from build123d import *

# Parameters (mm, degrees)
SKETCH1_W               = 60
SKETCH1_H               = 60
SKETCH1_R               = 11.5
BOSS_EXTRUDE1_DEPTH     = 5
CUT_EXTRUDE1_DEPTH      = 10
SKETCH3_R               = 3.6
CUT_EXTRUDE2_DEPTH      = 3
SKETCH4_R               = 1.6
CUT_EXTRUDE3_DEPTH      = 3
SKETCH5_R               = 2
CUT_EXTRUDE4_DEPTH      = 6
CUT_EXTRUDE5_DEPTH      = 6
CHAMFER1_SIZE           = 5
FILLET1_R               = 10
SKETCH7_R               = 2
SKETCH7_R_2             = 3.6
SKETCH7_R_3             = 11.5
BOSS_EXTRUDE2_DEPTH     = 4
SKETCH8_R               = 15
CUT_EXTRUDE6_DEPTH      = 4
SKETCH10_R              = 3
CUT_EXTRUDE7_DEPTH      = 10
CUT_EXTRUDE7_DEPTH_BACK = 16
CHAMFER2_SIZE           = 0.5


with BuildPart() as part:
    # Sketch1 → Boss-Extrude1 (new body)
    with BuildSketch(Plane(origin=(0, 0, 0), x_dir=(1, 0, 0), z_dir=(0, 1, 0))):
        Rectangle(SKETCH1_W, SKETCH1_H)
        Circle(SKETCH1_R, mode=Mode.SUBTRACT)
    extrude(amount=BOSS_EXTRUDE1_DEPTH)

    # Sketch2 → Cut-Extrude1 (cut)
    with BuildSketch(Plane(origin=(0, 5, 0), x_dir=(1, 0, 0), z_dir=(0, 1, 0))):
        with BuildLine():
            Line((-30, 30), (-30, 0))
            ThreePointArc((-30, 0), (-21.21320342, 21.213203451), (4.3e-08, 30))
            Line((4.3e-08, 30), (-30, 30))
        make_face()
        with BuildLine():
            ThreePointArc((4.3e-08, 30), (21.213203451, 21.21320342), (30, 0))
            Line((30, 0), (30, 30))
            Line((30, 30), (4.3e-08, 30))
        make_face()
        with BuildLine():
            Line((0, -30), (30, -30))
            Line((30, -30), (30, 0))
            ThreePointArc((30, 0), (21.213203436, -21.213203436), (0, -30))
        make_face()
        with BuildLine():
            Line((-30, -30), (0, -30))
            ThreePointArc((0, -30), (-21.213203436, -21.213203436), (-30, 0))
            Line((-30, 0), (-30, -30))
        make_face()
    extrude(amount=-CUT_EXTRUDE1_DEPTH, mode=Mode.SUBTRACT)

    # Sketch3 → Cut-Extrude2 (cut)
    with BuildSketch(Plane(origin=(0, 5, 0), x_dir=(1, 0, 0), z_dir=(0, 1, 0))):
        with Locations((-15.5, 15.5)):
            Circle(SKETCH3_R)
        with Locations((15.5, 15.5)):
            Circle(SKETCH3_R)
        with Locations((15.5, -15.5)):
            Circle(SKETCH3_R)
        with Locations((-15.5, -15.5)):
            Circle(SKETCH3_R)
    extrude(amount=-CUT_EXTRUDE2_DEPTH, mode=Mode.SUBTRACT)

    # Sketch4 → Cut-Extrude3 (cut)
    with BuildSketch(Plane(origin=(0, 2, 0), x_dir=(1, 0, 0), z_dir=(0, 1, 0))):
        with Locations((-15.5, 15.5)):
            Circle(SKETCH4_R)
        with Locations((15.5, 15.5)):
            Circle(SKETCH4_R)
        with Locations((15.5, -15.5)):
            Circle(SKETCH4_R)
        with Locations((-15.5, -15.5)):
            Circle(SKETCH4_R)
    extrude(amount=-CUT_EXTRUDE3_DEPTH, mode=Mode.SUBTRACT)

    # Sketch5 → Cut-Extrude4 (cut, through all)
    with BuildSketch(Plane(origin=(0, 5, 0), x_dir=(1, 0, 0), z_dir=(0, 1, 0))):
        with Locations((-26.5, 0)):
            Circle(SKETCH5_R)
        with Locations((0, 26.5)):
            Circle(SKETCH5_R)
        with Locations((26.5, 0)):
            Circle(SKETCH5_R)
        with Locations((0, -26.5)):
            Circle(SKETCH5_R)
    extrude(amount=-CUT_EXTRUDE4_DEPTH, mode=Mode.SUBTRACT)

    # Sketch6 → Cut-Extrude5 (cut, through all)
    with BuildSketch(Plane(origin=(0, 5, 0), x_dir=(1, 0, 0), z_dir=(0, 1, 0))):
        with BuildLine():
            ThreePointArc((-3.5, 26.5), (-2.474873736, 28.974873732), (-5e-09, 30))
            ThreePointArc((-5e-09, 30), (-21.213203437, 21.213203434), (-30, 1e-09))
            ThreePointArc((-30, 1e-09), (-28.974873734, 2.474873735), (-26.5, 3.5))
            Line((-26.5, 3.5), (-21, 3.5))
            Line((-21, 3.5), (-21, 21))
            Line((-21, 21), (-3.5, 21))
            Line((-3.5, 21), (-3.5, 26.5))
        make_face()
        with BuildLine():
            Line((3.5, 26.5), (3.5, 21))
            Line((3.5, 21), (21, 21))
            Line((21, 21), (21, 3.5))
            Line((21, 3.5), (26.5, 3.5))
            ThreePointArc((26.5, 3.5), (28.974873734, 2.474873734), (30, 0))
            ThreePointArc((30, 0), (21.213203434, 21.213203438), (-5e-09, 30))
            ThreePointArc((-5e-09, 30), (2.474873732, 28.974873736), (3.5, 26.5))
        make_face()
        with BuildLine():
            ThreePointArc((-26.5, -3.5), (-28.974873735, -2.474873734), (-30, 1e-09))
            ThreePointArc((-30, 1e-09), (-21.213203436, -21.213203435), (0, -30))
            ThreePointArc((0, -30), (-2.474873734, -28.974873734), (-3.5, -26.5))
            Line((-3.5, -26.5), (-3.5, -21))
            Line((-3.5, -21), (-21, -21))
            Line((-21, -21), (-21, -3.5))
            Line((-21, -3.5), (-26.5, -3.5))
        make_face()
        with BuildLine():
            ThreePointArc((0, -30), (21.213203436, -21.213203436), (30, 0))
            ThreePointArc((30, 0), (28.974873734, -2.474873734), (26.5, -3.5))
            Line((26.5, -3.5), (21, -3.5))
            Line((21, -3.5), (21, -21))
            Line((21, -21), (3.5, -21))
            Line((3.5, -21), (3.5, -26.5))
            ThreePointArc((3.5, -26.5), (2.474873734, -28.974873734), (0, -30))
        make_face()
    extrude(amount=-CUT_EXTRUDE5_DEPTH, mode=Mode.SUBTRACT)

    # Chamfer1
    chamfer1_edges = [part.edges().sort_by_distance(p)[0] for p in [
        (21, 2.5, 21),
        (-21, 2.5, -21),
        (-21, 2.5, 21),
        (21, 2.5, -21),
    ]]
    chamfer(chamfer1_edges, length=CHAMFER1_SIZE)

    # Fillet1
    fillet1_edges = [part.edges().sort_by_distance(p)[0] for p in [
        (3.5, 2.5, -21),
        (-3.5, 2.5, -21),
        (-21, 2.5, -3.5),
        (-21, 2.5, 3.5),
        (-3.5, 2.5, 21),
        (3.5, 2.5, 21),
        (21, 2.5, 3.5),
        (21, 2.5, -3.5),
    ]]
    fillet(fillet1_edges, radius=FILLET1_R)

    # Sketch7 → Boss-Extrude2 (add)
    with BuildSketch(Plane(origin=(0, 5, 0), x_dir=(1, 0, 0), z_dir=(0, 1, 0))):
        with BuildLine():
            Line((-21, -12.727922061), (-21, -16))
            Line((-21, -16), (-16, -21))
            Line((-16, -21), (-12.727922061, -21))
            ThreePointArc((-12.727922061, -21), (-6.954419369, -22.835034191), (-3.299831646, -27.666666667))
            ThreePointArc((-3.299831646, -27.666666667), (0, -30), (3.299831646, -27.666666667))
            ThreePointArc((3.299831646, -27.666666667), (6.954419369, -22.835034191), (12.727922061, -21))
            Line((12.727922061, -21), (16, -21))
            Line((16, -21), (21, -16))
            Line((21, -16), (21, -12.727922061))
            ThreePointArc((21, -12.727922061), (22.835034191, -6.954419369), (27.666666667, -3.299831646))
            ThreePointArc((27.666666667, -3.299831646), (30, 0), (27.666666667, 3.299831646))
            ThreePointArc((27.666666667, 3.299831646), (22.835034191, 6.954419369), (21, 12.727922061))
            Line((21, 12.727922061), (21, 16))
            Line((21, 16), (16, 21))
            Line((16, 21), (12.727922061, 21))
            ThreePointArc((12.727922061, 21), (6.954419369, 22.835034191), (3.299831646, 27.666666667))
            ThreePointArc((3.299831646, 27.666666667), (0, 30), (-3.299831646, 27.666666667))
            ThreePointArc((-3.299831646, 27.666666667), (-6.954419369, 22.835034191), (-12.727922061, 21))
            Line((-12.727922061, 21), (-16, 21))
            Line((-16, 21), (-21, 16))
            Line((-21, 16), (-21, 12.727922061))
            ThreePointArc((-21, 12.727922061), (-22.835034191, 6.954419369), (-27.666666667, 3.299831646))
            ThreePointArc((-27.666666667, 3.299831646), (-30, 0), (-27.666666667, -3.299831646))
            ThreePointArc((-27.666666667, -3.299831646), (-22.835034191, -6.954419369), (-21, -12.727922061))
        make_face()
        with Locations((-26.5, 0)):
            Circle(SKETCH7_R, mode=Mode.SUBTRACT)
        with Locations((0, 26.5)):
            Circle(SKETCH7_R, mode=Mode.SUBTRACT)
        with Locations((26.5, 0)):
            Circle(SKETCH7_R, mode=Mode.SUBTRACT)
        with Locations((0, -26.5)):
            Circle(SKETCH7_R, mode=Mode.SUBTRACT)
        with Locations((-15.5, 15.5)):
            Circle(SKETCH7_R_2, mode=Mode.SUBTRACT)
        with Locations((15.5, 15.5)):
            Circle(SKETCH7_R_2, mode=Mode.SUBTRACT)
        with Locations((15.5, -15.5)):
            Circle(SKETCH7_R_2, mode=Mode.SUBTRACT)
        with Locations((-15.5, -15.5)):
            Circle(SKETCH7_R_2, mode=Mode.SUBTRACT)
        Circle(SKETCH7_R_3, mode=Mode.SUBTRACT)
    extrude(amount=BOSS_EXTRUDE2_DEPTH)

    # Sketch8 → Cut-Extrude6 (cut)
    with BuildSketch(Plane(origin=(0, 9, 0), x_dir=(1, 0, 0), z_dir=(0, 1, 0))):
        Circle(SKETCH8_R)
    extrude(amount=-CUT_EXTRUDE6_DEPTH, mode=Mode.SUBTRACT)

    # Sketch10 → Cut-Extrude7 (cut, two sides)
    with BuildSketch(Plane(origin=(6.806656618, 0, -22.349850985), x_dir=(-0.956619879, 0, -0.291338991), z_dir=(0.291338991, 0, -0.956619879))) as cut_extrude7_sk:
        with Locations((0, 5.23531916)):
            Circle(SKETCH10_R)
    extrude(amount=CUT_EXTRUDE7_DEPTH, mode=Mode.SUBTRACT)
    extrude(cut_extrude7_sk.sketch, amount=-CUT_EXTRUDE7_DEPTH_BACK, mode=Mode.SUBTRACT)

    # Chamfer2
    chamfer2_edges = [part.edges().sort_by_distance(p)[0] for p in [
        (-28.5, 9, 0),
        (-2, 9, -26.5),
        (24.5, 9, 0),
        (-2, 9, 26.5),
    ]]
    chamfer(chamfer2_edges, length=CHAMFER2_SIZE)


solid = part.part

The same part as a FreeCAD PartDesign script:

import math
import FreeCAD as App
import Part
import Sketcher
Q = App.Units.Quantity


def edges_at(feature, points):
    """Names of the edges that pass closest to the given points."""
    edges = feature.Shape.Edges
    near = lambda p: min(range(len(edges)), key=lambda i: edges[i].distToShape(Part.Vertex(*p))[0])
    return sorted({f"Edge{near(p) + 1}" for p in points})

doc = App.newDocument("Part")
body = doc.addObject("PartDesign::Body", "Body")

# Sketch on XZ plane
sketch1 = doc.addObject("Sketcher::SketchObject", "Sketch")
body.addObject(sketch1)
sketch1.AttachmentSupport = (doc.XZ_Plane, [""])
sketch1.MapMode = "FlatFace"
sketch1.addGeometry(Part.LineSegment(App.Vector(-30, -30, 0), App.Vector(-30, 30, 0)), False)
sketch1.addGeometry(Part.LineSegment(App.Vector(-30, 30, 0), App.Vector(30, 30, 0)), False)
sketch1.addGeometry(Part.LineSegment(App.Vector(30, 30, 0), App.Vector(30, -30, 0)), False)
sketch1.addGeometry(Part.LineSegment(App.Vector(30, -30, 0), App.Vector(-30, -30, 0)), False)
sketch1.addGeometry(Part.Circle(App.Vector(0, 0, 0), App.Vector(0, 0, 1), 12), False)
sketch1.addConstraint(Sketcher.Constraint("Coincident", 0, 2, 1, 1))
sketch1.addConstraint(Sketcher.Constraint("Coincident", 1, 2, 2, 1))
sketch1.addConstraint(Sketcher.Constraint("Coincident", 2, 2, 3, 1))
sketch1.addConstraint(Sketcher.Constraint("Coincident", 3, 2, 0, 1))
sketch1.addConstraint(Sketcher.Constraint("Vertical", 0))
sketch1.addConstraint(Sketcher.Constraint("Horizontal", 1))
sketch1.addConstraint(Sketcher.Constraint("Vertical", 2))
sketch1.addConstraint(Sketcher.Constraint("Horizontal", 3))
sketch1.addConstraint(Sketcher.Constraint("Coincident", 4, 3, -1, 1))
sketch1.addConstraint(Sketcher.Constraint("Symmetric", 0, 2, 2, 2, -1, 1))
sketch1.addConstraint(Sketcher.Constraint("Equal", 3, 0))
sketch1.addConstraint(Sketcher.Constraint("Diameter", 4, Q("23 mm")))
sketch1.addConstraint(Sketcher.Constraint("DistanceX", 1, 1, 1, 2, Q("60 mm")))
pad1 = doc.addObject("PartDesign::Pad", "Pad")
body.addObject(pad1)
pad1.Profile = sketch1
pad1.Length = 5
pad1.Reversed = True

# Sketch on XZ plane
sketch2 = doc.addObject("Sketcher::SketchObject", "Sketch001")
body.addObject(sketch2)
sketch2.AttachmentSupport = (doc.XZ_Plane, [""])
sketch2.MapMode = "FlatFace"
sketch2.AttachmentOffset = App.Placement(App.Vector(0, 0, -5), App.Rotation())
sketch2.addGeometry(Part.LineSegment(App.Vector(-30, -30, 0), App.Vector(-30, 0, 0)), False)
sketch2.addGeometry(Part.ArcOfCircle(Part.Circle(App.Vector(0, 0, 0), App.Vector(0, 0, 1), 30), math.radians(180), math.radians(270)), False)
sketch2.addGeometry(Part.LineSegment(App.Vector(0, -30, 0), App.Vector(-30, -30, 0)), False)
sketch2.addGeometry(Part.ArcOfCircle(Part.Circle(App.Vector(0, 0, 0), App.Vector(0, 0, 1), 30), math.radians(-90), math.radians(0)), False)
sketch2.addGeometry(Part.LineSegment(App.Vector(30, 0, 0), App.Vector(30, -30, 0)), False)
sketch2.addGeometry(Part.LineSegment(App.Vector(30, -30, 0), App.Vector(0, -30, 0)), False)
sketch2.addGeometry(Part.LineSegment(App.Vector(0, 30, 0), App.Vector(30, 30, 0)), False)
sketch2.addGeometry(Part.LineSegment(App.Vector(30, 30, 0), App.Vector(30, 0, 0)), False)
sketch2.addGeometry(Part.ArcOfCircle(Part.Circle(App.Vector(0, 0, 0), App.Vector(0, 0, 1), 30), math.radians(0), math.radians(90)), False)
sketch2.addGeometry(Part.LineSegment(App.Vector(-30, 30, 0), App.Vector(0, 30, 0)), False)
sketch2.addGeometry(Part.ArcOfCircle(Part.Circle(App.Vector(0, 0, 0), App.Vector(0, 0, 1), 30), math.radians(90), math.radians(180)), False)
sketch2.addGeometry(Part.LineSegment(App.Vector(-30, 0, 0), App.Vector(-30, 30, 0)), False)
sketch2.addConstraint(Sketcher.Constraint("Tangent", 0, 2, 1, 1))
sketch2.addConstraint(Sketcher.Constraint("Tangent", 1, 2, 2, 1))
sketch2.addConstraint(Sketcher.Constraint("Coincident", 2, 2, 0, 1))
sketch2.addConstraint(Sketcher.Constraint("Tangent", 3, 2, 4, 1))
sketch2.addConstraint(Sketcher.Constraint("Coincident", 4, 2, 5, 1))
sketch2.addConstraint(Sketcher.Constraint("Tangent", 5, 2, 3, 1))
sketch2.addConstraint(Sketcher.Constraint("Coincident", 6, 2, 7, 1))
sketch2.addConstraint(Sketcher.Constraint("Tangent", 7, 2, 8, 1))
sketch2.addConstraint(Sketcher.Constraint("Tangent", 8, 2, 6, 1))
sketch2.addConstraint(Sketcher.Constraint("Tangent", 9, 2, 10, 1))
sketch2.addConstraint(Sketcher.Constraint("Tangent", 10, 2, 11, 1))
sketch2.addConstraint(Sketcher.Constraint("Coincident", 11, 2, 9, 1))
sketch2.addConstraint(Sketcher.Constraint("Vertical", 0))
sketch2.addConstraint(Sketcher.Constraint("Horizontal", 2))
sketch2.addConstraint(Sketcher.Constraint("Vertical", 4))
sketch2.addConstraint(Sketcher.Constraint("Horizontal", 5))
sketch2.addConstraint(Sketcher.Constraint("Horizontal", 6))
sketch2.addConstraint(Sketcher.Constraint("Vertical", 7))
sketch2.addConstraint(Sketcher.Constraint("Horizontal", 9))
sketch2.addConstraint(Sketcher.Constraint("Vertical", 11))
sketch2.addConstraint(Sketcher.Constraint("Coincident", 1, 3, -1, 1))
sketch2.addConstraint(Sketcher.Constraint("Coincident", 3, 3, -1, 1))
sketch2.addConstraint(Sketcher.Constraint("Coincident", 8, 3, -1, 1))
sketch2.addConstraint(Sketcher.Constraint("Coincident", 10, 3, -1, 1))
sketch2.addConstraint(Sketcher.Constraint("Equal", 1, 3))
sketch2.addConstraint(Sketcher.Constraint("Equal", 3, 8))
sketch2.addConstraint(Sketcher.Constraint("Equal", 8, 10))
sketch2.addConstraint(Sketcher.Constraint("Radius", 1, Q("30 mm")))
pocket1 = doc.addObject("PartDesign::Pocket", "Pocket")
body.addObject(pocket1)
pocket1.Profile = sketch2
pocket1.Length = 10
pocket1.Reversed = True

# Sketch on XZ plane
sketch3 = doc.addObject("Sketcher::SketchObject", "Sketch002")
body.addObject(sketch3)
sketch3.AttachmentSupport = (doc.XZ_Plane, [""])
sketch3.MapMode = "FlatFace"
sketch3.AttachmentOffset = App.Placement(App.Vector(0, 0, -5), App.Rotation())
sketch3.addGeometry(Part.Circle(App.Vector(-15.5, -15.5, 0), App.Vector(0, 0, 1), 3.6), False)
sketch3.addGeometry(Part.Circle(App.Vector(15.5, -15.5, 0), App.Vector(0, 0, 1), 3.6), False)
sketch3.addGeometry(Part.Circle(App.Vector(15.5, 15.5, 0), App.Vector(0, 0, 1), 3.6), False)
sketch3.addGeometry(Part.Circle(App.Vector(-15.5, 15.5, 0), App.Vector(0, 0, 1), 3.6), False)
sketch3.addConstraint(Sketcher.Constraint("Equal", 0, 1))
sketch3.addConstraint(Sketcher.Constraint("Equal", 1, 2))
sketch3.addConstraint(Sketcher.Constraint("Equal", 2, 3))
sketch3.addConstraint(Sketcher.Constraint("Symmetric", 0, 3, 2, 3, -1, 1))
sketch3.addConstraint(Sketcher.Constraint("Symmetric", 1, 3, 3, 3, -1, 1))
sketch3.addConstraint(Sketcher.Constraint("Symmetric", 0, 3, 1, 3, -2))
sketch3.addConstraint(Sketcher.Constraint("Diameter", 0, Q("7.2 mm")))
sketch3.addConstraint(Sketcher.Constraint("DistanceX", 0, 3, 1, 3, Q("31 mm")))
sketch3.addConstraint(Sketcher.Constraint("DistanceY", 1, 3, 2, 3, Q("31 mm")))
pocket2 = doc.addObject("PartDesign::Pocket", "Pocket001")
body.addObject(pocket2)
pocket2.Profile = sketch3
pocket2.Length = 3
pocket2.Reversed = True

# Sketch on XZ plane
sketch4 = doc.addObject("Sketcher::SketchObject", "Sketch003")
body.addObject(sketch4)
sketch4.AttachmentSupport = (doc.XZ_Plane, [""])
sketch4.MapMode = "FlatFace"
sketch4.AttachmentOffset = App.Placement(App.Vector(0, 0, -2), App.Rotation())
sketch4.addGeometry(Part.Circle(App.Vector(-15.5, -15.5, 0), App.Vector(0, 0, 1), 1.6), False)
sketch4.addGeometry(Part.Circle(App.Vector(15.5, -15.5, 0), App.Vector(0, 0, 1), 1.6), False)
sketch4.addGeometry(Part.Circle(App.Vector(15.5, 15.5, 0), App.Vector(0, 0, 1), 1.6), False)
sketch4.addGeometry(Part.Circle(App.Vector(-15.5, 15.5, 0), App.Vector(0, 0, 1), 1.6), False)
sketch4.addConstraint(Sketcher.Constraint("Equal", 0, 1))
sketch4.addConstraint(Sketcher.Constraint("Equal", 1, 2))
sketch4.addConstraint(Sketcher.Constraint("Equal", 2, 3))
sketch4.addConstraint(Sketcher.Constraint("Symmetric", 0, 3, 2, 3, -1, 1))
sketch4.addConstraint(Sketcher.Constraint("Symmetric", 1, 3, 3, 3, -1, 1))
sketch4.addConstraint(Sketcher.Constraint("Symmetric", 0, 3, 1, 3, -2))
sketch4.addConstraint(Sketcher.Constraint("Diameter", 0, Q("3.2 mm")))
sketch4.addConstraint(Sketcher.Constraint("DistanceX", 0, 3, 1, 3, Q("31 mm")))
sketch4.addConstraint(Sketcher.Constraint("DistanceY", 1, 3, 2, 3, Q("31 mm")))
pocket3 = doc.addObject("PartDesign::Pocket", "Pocket002")
body.addObject(pocket3)
pocket3.Profile = sketch4
pocket3.Length = 3
pocket3.Reversed = True

# Sketch on XZ plane
sketch5 = doc.addObject("Sketcher::SketchObject", "Sketch004")
body.addObject(sketch5)
sketch5.AttachmentSupport = (doc.XZ_Plane, [""])
sketch5.MapMode = "FlatFace"
sketch5.AttachmentOffset = App.Placement(App.Vector(0, 0, -5), App.Rotation())
sketch5.addGeometry(Part.Circle(App.Vector(-26.5, 0, 0), App.Vector(0, 0, 1), 2), False)
sketch5.addGeometry(Part.Circle(App.Vector(0, -26.5, 0), App.Vector(0, 0, 1), 2), False)
sketch5.addGeometry(Part.Circle(App.Vector(26.5, 0, 0), App.Vector(0, 0, 1), 2), False)
sketch5.addGeometry(Part.Circle(App.Vector(0, 26.5, 0), App.Vector(0, 0, 1), 2), False)
sketch5.addConstraint(Sketcher.Constraint("Equal", 0, 1))
sketch5.addConstraint(Sketcher.Constraint("Equal", 1, 2))
sketch5.addConstraint(Sketcher.Constraint("Equal", 2, 3))
sketch5.addConstraint(Sketcher.Constraint("Symmetric", 0, 3, 2, 3, -1, 1))
sketch5.addConstraint(Sketcher.Constraint("Symmetric", 1, 3, 3, 3, -1, 1))
sketch5.addConstraint(Sketcher.Constraint("PointOnObject", 0, 3, -1))
sketch5.addConstraint(Sketcher.Constraint("PointOnObject", 1, 3, -2))
sketch5.addConstraint(Sketcher.Constraint("Diameter", 0, Q("4 mm")))
sketch5.addConstraint(Sketcher.Constraint("DistanceX", 0, 3, 2, 3, Q("53 mm")))
sketch5.addConstraint(Sketcher.Constraint("DistanceY", 1, 3, 3, 3, Q("53 mm")))
pocket4 = doc.addObject("PartDesign::Pocket", "Pocket003")
body.addObject(pocket4)
pocket4.Profile = sketch5
pocket4.Type = "ThroughAll"
pocket4.Reversed = True

# Sketch on XZ plane
sketch6 = doc.addObject("Sketcher::SketchObject", "Sketch005")
body.addObject(sketch6)
sketch6.AttachmentSupport = (doc.XZ_Plane, [""])
sketch6.MapMode = "FlatFace"
sketch6.AttachmentOffset = App.Placement(App.Vector(0, 0, -5), App.Rotation())
sketch6.addGeometry(Part.ArcOfCircle(Part.Circle(App.Vector(0, -26.5, 0), App.Vector(0, 0, 1), 3.5), math.radians(-180), math.radians(-90)), False)
sketch6.addGeometry(Part.ArcOfCircle(Part.Circle(App.Vector(0, 0, 0), App.Vector(0, 0, 1), 30), math.radians(-180), math.radians(-90)), False)
sketch6.addGeometry(Part.ArcOfCircle(Part.Circle(App.Vector(-26.5, 0, 0), App.Vector(0, 0, 1), 3.5), math.radians(180), math.radians(270)), False)
sketch6.addGeometry(Part.LineSegment(App.Vector(-26.5, -3.5, 0), App.Vector(-21, -3.5, 0)), False)
sketch6.addGeometry(Part.LineSegment(App.Vector(-21, -3.5, 0), App.Vector(-21, -21, 0)), False)
sketch6.addGeometry(Part.LineSegment(App.Vector(-21, -21, 0), App.Vector(-3.5, -21, 0)), False)
sketch6.addGeometry(Part.LineSegment(App.Vector(-3.5, -21, 0), App.Vector(-3.5, -26.5, 0)), False)
sketch6.addGeometry(Part.LineSegment(App.Vector(3.5, -26.5, 0), App.Vector(3.5, -21, 0)), False)
sketch6.addGeometry(Part.LineSegment(App.Vector(3.5, -21, 0), App.Vector(21, -21, 0)), False)
sketch6.addGeometry(Part.LineSegment(App.Vector(21, -21, 0), App.Vector(21, -3.5, 0)), False)
sketch6.addGeometry(Part.LineSegment(App.Vector(21, -3.5, 0), App.Vector(26.5, -3.5, 0)), False)
sketch6.addGeometry(Part.ArcOfCircle(Part.Circle(App.Vector(26.5, 0, 0), App.Vector(0, 0, 1), 3.5), math.radians(-90), math.radians(0)), False)
sketch6.addGeometry(Part.ArcOfCircle(Part.Circle(App.Vector(0, 0, 0), App.Vector(0, 0, 1), 30), math.radians(-90), math.radians(0)), False)
sketch6.addGeometry(Part.ArcOfCircle(Part.Circle(App.Vector(0, -26.5, 0), App.Vector(0, 0, 1), 3.5), math.radians(-90), math.radians(0)), False)
sketch6.addGeometry(Part.ArcOfCircle(Part.Circle(App.Vector(-26.5, 0, 0), App.Vector(0, 0, 1), 3.5), math.radians(90), math.radians(180)), False)
sketch6.addGeometry(Part.ArcOfCircle(Part.Circle(App.Vector(0, 0, 0), App.Vector(0, 0, 1), 30), math.radians(90), math.radians(180)), False)
sketch6.addGeometry(Part.ArcOfCircle(Part.Circle(App.Vector(0, 26.5, 0), App.Vector(0, 0, 1), 3.5), math.radians(90), math.radians(180)), False)
sketch6.addGeometry(Part.LineSegment(App.Vector(-3.5, 26.5, 0), App.Vector(-3.5, 21, 0)), False)
sketch6.addGeometry(Part.LineSegment(App.Vector(-3.5, 21, 0), App.Vector(-21, 21, 0)), False)
sketch6.addGeometry(Part.LineSegment(App.Vector(-21, 21, 0), App.Vector(-21, 3.5, 0)), False)
sketch6.addGeometry(Part.LineSegment(App.Vector(-21, 3.5, 0), App.Vector(-26.5, 3.5, 0)), False)
sketch6.addGeometry(Part.ArcOfCircle(Part.Circle(App.Vector(0, 0, 0), App.Vector(0, 0, 1), 30), math.radians(0), math.radians(90)), False)
sketch6.addGeometry(Part.ArcOfCircle(Part.Circle(App.Vector(26.5, 0, 0), App.Vector(0, 0, 1), 3.5), math.radians(0), math.radians(90)), False)
sketch6.addGeometry(Part.LineSegment(App.Vector(26.5, 3.5, 0), App.Vector(21, 3.5, 0)), False)
sketch6.addGeometry(Part.LineSegment(App.Vector(21, 3.5, 0), App.Vector(21, 21, 0)), False)
sketch6.addGeometry(Part.LineSegment(App.Vector(21, 21, 0), App.Vector(3.5, 21, 0)), False)
sketch6.addGeometry(Part.LineSegment(App.Vector(3.5, 21, 0), App.Vector(3.5, 26.5, 0)), False)
sketch6.addGeometry(Part.ArcOfCircle(Part.Circle(App.Vector(0, 26.5, 0), App.Vector(0, 0, 1), 3.5), math.radians(0), math.radians(90)), False)
sketch6.addConstraint(Sketcher.Constraint("Tangent", 0, 2, 1, 2))
sketch6.addConstraint(Sketcher.Constraint("Tangent", 1, 1, 2, 1))
sketch6.addConstraint(Sketcher.Constraint("Tangent", 2, 2, 3, 1))
sketch6.addConstraint(Sketcher.Constraint("Coincident", 3, 2, 4, 1))
sketch6.addConstraint(Sketcher.Constraint("Coincident", 4, 2, 5, 1))
sketch6.addConstraint(Sketcher.Constraint("Coincident", 5, 2, 6, 1))
sketch6.addConstraint(Sketcher.Constraint("Tangent", 6, 2, 0, 1))
sketch6.addConstraint(Sketcher.Constraint("Coincident", 7, 2, 8, 1))
sketch6.addConstraint(Sketcher.Constraint("Coincident", 8, 2, 9, 1))
sketch6.addConstraint(Sketcher.Constraint("Coincident", 9, 2, 10, 1))
sketch6.addConstraint(Sketcher.Constraint("Tangent", 10, 2, 11, 1))
sketch6.addConstraint(Sketcher.Constraint("Tangent", 11, 2, 12, 2))
sketch6.addConstraint(Sketcher.Constraint("Tangent", 12, 1, 13, 1))
sketch6.addConstraint(Sketcher.Constraint("Tangent", 13, 2, 7, 1))
sketch6.addConstraint(Sketcher.Constraint("Tangent", 14, 2, 15, 2))
sketch6.addConstraint(Sketcher.Constraint("Tangent", 15, 1, 16, 1))
sketch6.addConstraint(Sketcher.Constraint("Tangent", 16, 2, 17, 1))
sketch6.addConstraint(Sketcher.Constraint("Coincident", 17, 2, 18, 1))
sketch6.addConstraint(Sketcher.Constraint("Coincident", 18, 2, 19, 1))
sketch6.addConstraint(Sketcher.Constraint("Coincident", 19, 2, 20, 1))
sketch6.addConstraint(Sketcher.Constraint("Tangent", 20, 2, 14, 1))
sketch6.addConstraint(Sketcher.Constraint("Tangent", 21, 1, 22, 1))
sketch6.addConstraint(Sketcher.Constraint("Tangent", 22, 2, 23, 1))
sketch6.addConstraint(Sketcher.Constraint("Coincident", 23, 2, 24, 1))
sketch6.addConstraint(Sketcher.Constraint("Coincident", 24, 2, 25, 1))
sketch6.addConstraint(Sketcher.Constraint("Coincident", 25, 2, 26, 1))
sketch6.addConstraint(Sketcher.Constraint("Tangent", 26, 2, 27, 1))
sketch6.addConstraint(Sketcher.Constraint("Tangent", 27, 2, 21, 2))
sketch6.addConstraint(Sketcher.Constraint("Horizontal", 3))
sketch6.addConstraint(Sketcher.Constraint("Vertical", 4))
sketch6.addConstraint(Sketcher.Constraint("Horizontal", 5))
sketch6.addConstraint(Sketcher.Constraint("Vertical", 6))
sketch6.addConstraint(Sketcher.Constraint("Vertical", 7))
sketch6.addConstraint(Sketcher.Constraint("Horizontal", 8))
sketch6.addConstraint(Sketcher.Constraint("Vertical", 9))
sketch6.addConstraint(Sketcher.Constraint("Horizontal", 10))
sketch6.addConstraint(Sketcher.Constraint("Vertical", 17))
sketch6.addConstraint(Sketcher.Constraint("Horizontal", 18))
sketch6.addConstraint(Sketcher.Constraint("Vertical", 19))
sketch6.addConstraint(Sketcher.Constraint("Horizontal", 20))
sketch6.addConstraint(Sketcher.Constraint("Horizontal", 23))
sketch6.addConstraint(Sketcher.Constraint("Vertical", 24))
sketch6.addConstraint(Sketcher.Constraint("Horizontal", 25))
sketch6.addConstraint(Sketcher.Constraint("Vertical", 26))
sketch6.addConstraint(Sketcher.Constraint("Coincident", 1, 3, -1, 1))
sketch6.addConstraint(Sketcher.Constraint("Coincident", 12, 3, -1, 1))
sketch6.addConstraint(Sketcher.Constraint("Coincident", 15, 3, -1, 1))
sketch6.addConstraint(Sketcher.Constraint("Coincident", 21, 3, -1, 1))
sketch6.addConstraint(Sketcher.Constraint("Coincident", 13, 3, 0, 3))
sketch6.addConstraint(Sketcher.Constraint("Coincident", 14, 3, 2, 3))
sketch6.addConstraint(Sketcher.Constraint("Coincident", 22, 3, 11, 3))
sketch6.addConstraint(Sketcher.Constraint("Coincident", 27, 3, 16, 3))
sketch6.addConstraint(Sketcher.Constraint("Equal", 0, 2))
sketch6.addConstraint(Sketcher.Constraint("Equal", 2, 11))
sketch6.addConstraint(Sketcher.Constraint("Equal", 1, 12))
sketch6.addConstraint(Sketcher.Constraint("Equal", 13, 14))
sketch6.addConstraint(Sketcher.Constraint("Equal", 14, 16))
sketch6.addConstraint(Sketcher.Constraint("Equal", 15, 21))
sketch6.addConstraint(Sketcher.Constraint("Symmetric", 7, 2, 17, 2, -1, 1))
sketch6.addConstraint(Sketcher.Constraint("Symmetric", 9, 2, 19, 2, -1, 1))
sketch6.addConstraint(Sketcher.Constraint("Symmetric", 4, 2, 24, 2, -1, 1))
sketch6.addConstraint(Sketcher.Constraint("Symmetric", 5, 2, 7, 2, -2))
sketch6.addConstraint(Sketcher.Constraint("Symmetric", 3, 2, 9, 2, -2))
sketch6.addConstraint(Sketcher.Constraint("Equal", 25, 4))
sketch6.addConstraint(Sketcher.Constraint("Radius", 1, Q("30 mm")))
sketch6.addConstraint(Sketcher.Constraint("Radius", 0, Q("3.5 mm")))
sketch6.addConstraint(Sketcher.Constraint("DistanceX", 3, 1, 3, 2, Q("5.5 mm")))
pocket5 = doc.addObject("PartDesign::Pocket", "Pocket004")
body.addObject(pocket5)
pocket5.Profile = sketch6
pocket5.Type = "ThroughAll"
pocket5.Reversed = True
doc.recompute()

chamfer = doc.addObject("PartDesign::Chamfer", "Chamfer")
body.addObject(chamfer)
chamfer.Base = (pocket5, edges_at(pocket5, [
    (21, 2.5, 21),
    (-21, 2.5, -21),
    (-21, 2.5, 21),
    (21, 2.5, -21),
]))
chamfer.Size = 5
doc.recompute()

fillet = doc.addObject("PartDesign::Fillet", "Fillet")
body.addObject(fillet)
fillet.Base = (chamfer, edges_at(chamfer, [
    (3.5, 2.5, -21),
    (-3.5, 2.5, -21),
    (-21, 2.5, -3.5),
    (-21, 2.5, 3.5),
    (-3.5, 2.5, 21),
    (3.5, 2.5, 21),
    (21, 2.5, 3.5),
    (21, 2.5, -3.5),
]))
fillet.Radius = 10

# Sketch on XZ plane
sketch7 = doc.addObject("Sketcher::SketchObject", "Sketch006")
body.addObject(sketch7)
sketch7.AttachmentSupport = (doc.XZ_Plane, [""])
sketch7.MapMode = "FlatFace"
sketch7.AttachmentOffset = App.Placement(App.Vector(0, 0, -5), App.Rotation())
sketch7.addGeometry(Part.LineSegment(App.Vector(-21, 12.7, 0), App.Vector(-21, 16, 0)), False)
sketch7.addGeometry(Part.LineSegment(App.Vector(-21, 16, 0), App.Vector(-16, 21, 0)), False)
sketch7.addGeometry(Part.LineSegment(App.Vector(-16, 21, 0), App.Vector(-12.7, 21, 0)), False)
sketch7.addGeometry(Part.ArcOfCircle(Part.Circle(App.Vector(-12.7, 31, 0), App.Vector(0, 0, 1), 10), math.radians(-90), math.radians(-19)), False)
sketch7.addGeometry(Part.ArcOfCircle(Part.Circle(App.Vector(0, 26.5, 0), App.Vector(0, 0, 1), 3.5), math.radians(19), math.radians(161)), False)
sketch7.addGeometry(Part.ArcOfCircle(Part.Circle(App.Vector(12.7, 31, 0), App.Vector(0, 0, 1), 10), math.radians(-161), math.radians(-90)), False)
sketch7.addGeometry(Part.LineSegment(App.Vector(12.7, 21, 0), App.Vector(16, 21, 0)), False)
sketch7.addGeometry(Part.LineSegment(App.Vector(16, 21, 0), App.Vector(21, 16, 0)), False)
sketch7.addGeometry(Part.LineSegment(App.Vector(21, 16, 0), App.Vector(21, 12.7, 0)), False)
sketch7.addGeometry(Part.ArcOfCircle(Part.Circle(App.Vector(31, 12.7, 0), App.Vector(0, 0, 1), 10), math.radians(180), math.radians(251)), False)
sketch7.addGeometry(Part.ArcOfCircle(Part.Circle(App.Vector(26.5, 0, 0), App.Vector(0, 0, 1), 3.5), math.radians(-71), math.radians(71)), False)
sketch7.addGeometry(Part.ArcOfCircle(Part.Circle(App.Vector(31, -12.7, 0), App.Vector(0, 0, 1), 10), math.radians(109), math.radians(180)), False)
sketch7.addGeometry(Part.LineSegment(App.Vector(21, -12.7, 0), App.Vector(21, -16, 0)), False)
sketch7.addGeometry(Part.LineSegment(App.Vector(21, -16, 0), App.Vector(16, -21, 0)), False)
sketch7.addGeometry(Part.LineSegment(App.Vector(16, -21, 0), App.Vector(12.7, -21, 0)), False)
sketch7.addGeometry(Part.ArcOfCircle(Part.Circle(App.Vector(12.7, -31, 0), App.Vector(0, 0, 1), 10), math.radians(90), math.radians(161)), False)
sketch7.addGeometry(Part.ArcOfCircle(Part.Circle(App.Vector(0, -26.5, 0), App.Vector(0, 0, 1), 3.5), math.radians(-161), math.radians(-19)), False)
sketch7.addGeometry(Part.ArcOfCircle(Part.Circle(App.Vector(-12.7, -31, 0), App.Vector(0, 0, 1), 10), math.radians(19), math.radians(90)), False)
sketch7.addGeometry(Part.LineSegment(App.Vector(-12.7, -21, 0), App.Vector(-16, -21, 0)), False)
sketch7.addGeometry(Part.LineSegment(App.Vector(-16, -21, 0), App.Vector(-21, -16, 0)), False)
sketch7.addGeometry(Part.LineSegment(App.Vector(-21, -16, 0), App.Vector(-21, -12.7, 0)), False)
sketch7.addGeometry(Part.ArcOfCircle(Part.Circle(App.Vector(-31, -12.7, 0), App.Vector(0, 0, 1), 10), math.radians(0), math.radians(71)), False)
sketch7.addGeometry(Part.ArcOfCircle(Part.Circle(App.Vector(-26.5, 0, 0), App.Vector(0, 0, 1), 3.5), math.radians(109), math.radians(251)), False)
sketch7.addGeometry(Part.ArcOfCircle(Part.Circle(App.Vector(-31, 12.7, 0), App.Vector(0, 0, 1), 10), math.radians(-71), math.radians(0)), False)
sketch7.addGeometry(Part.Circle(App.Vector(-15.5, 15.5, 0), App.Vector(0, 0, 1), 3.6), False)
sketch7.addGeometry(Part.Circle(App.Vector(0, 26.5, 0), App.Vector(0, 0, 1), 2), False)
sketch7.addGeometry(Part.Circle(App.Vector(15.5, 15.5, 0), App.Vector(0, 0, 1), 3.6), False)
sketch7.addGeometry(Part.Circle(App.Vector(-26.5, 0, 0), App.Vector(0, 0, 1), 2), False)
sketch7.addGeometry(Part.Circle(App.Vector(-15.5, -15.5, 0), App.Vector(0, 0, 1), 3.6), False)
sketch7.addGeometry(Part.Circle(App.Vector(0, 0, 0), App.Vector(0, 0, 1), 11.5), False)
sketch7.addGeometry(Part.Circle(App.Vector(26.5, 0, 0), App.Vector(0, 0, 1), 2), False)
sketch7.addGeometry(Part.Circle(App.Vector(0, -26.5, 0), App.Vector(0, 0, 1), 2), False)
sketch7.addGeometry(Part.Circle(App.Vector(15.5, -15.5, 0), App.Vector(0, 0, 1), 3.6), False)
sketch7.addConstraint(Sketcher.Constraint("Coincident", 0, 2, 1, 1))
sketch7.addConstraint(Sketcher.Constraint("Coincident", 1, 2, 2, 1))
sketch7.addConstraint(Sketcher.Constraint("Tangent", 2, 2, 3, 1))
sketch7.addConstraint(Sketcher.Constraint("Tangent", 3, 2, 4, 2))
sketch7.addConstraint(Sketcher.Constraint("Tangent", 4, 1, 5, 1))
sketch7.addConstraint(Sketcher.Constraint("Tangent", 5, 2, 6, 1))
sketch7.addConstraint(Sketcher.Constraint("Coincident", 6, 2, 7, 1))
sketch7.addConstraint(Sketcher.Constraint("Coincident", 7, 2, 8, 1))
sketch7.addConstraint(Sketcher.Constraint("Tangent", 8, 2, 9, 1))
sketch7.addConstraint(Sketcher.Constraint("Tangent", 9, 2, 10, 2))
sketch7.addConstraint(Sketcher.Constraint("Tangent", 10, 1, 11, 1))
sketch7.addConstraint(Sketcher.Constraint("Tangent", 11, 2, 12, 1))
sketch7.addConstraint(Sketcher.Constraint("Coincident", 12, 2, 13, 1))
sketch7.addConstraint(Sketcher.Constraint("Coincident", 13, 2, 14, 1))
sketch7.addConstraint(Sketcher.Constraint("Tangent", 14, 2, 15, 1))
sketch7.addConstraint(Sketcher.Constraint("Tangent", 15, 2, 16, 2))
sketch7.addConstraint(Sketcher.Constraint("Tangent", 16, 1, 17, 1))
sketch7.addConstraint(Sketcher.Constraint("Tangent", 17, 2, 18, 1))
sketch7.addConstraint(Sketcher.Constraint("Coincident", 18, 2, 19, 1))
sketch7.addConstraint(Sketcher.Constraint("Coincident", 19, 2, 20, 1))
sketch7.addConstraint(Sketcher.Constraint("Tangent", 20, 2, 21, 1))
sketch7.addConstraint(Sketcher.Constraint("Tangent", 21, 2, 22, 2))
sketch7.addConstraint(Sketcher.Constraint("Tangent", 22, 1, 23, 1))
sketch7.addConstraint(Sketcher.Constraint("Tangent", 23, 2, 0, 1))
sketch7.addConstraint(Sketcher.Constraint("Vertical", 0))
sketch7.addConstraint(Sketcher.Constraint("Horizontal", 2))
sketch7.addConstraint(Sketcher.Constraint("Horizontal", 6))
sketch7.addConstraint(Sketcher.Constraint("Vertical", 8))
sketch7.addConstraint(Sketcher.Constraint("Vertical", 12))
sketch7.addConstraint(Sketcher.Constraint("Horizontal", 14))
sketch7.addConstraint(Sketcher.Constraint("Horizontal", 18))
sketch7.addConstraint(Sketcher.Constraint("Vertical", 20))
sketch7.addConstraint(Sketcher.Constraint("Coincident", 29, 3, -1, 1))
sketch7.addConstraint(Sketcher.Constraint("Coincident", 25, 3, 4, 3))
sketch7.addConstraint(Sketcher.Constraint("Coincident", 27, 3, 22, 3))
sketch7.addConstraint(Sketcher.Constraint("Coincident", 30, 3, 10, 3))
sketch7.addConstraint(Sketcher.Constraint("Coincident", 31, 3, 16, 3))
sketch7.addConstraint(Sketcher.Constraint("Equal", 3, 5))
sketch7.addConstraint(Sketcher.Constraint("Equal", 5, 9))
sketch7.addConstraint(Sketcher.Constraint("Equal", 4, 10))
sketch7.addConstraint(Sketcher.Constraint("Equal", 9, 11))
sketch7.addConstraint(Sketcher.Constraint("Equal", 11, 15))
sketch7.addConstraint(Sketcher.Constraint("Equal", 10, 16))
sketch7.addConstraint(Sketcher.Constraint("Equal", 15, 17))
sketch7.addConstraint(Sketcher.Constraint("Equal", 17, 21))
sketch7.addConstraint(Sketcher.Constraint("Equal", 16, 22))
sketch7.addConstraint(Sketcher.Constraint("Equal", 21, 23))
sketch7.addConstraint(Sketcher.Constraint("Equal", 24, 26))
sketch7.addConstraint(Sketcher.Constraint("Equal", 25, 27))
sketch7.addConstraint(Sketcher.Constraint("Equal", 26, 28))
sketch7.addConstraint(Sketcher.Constraint("Equal", 27, 30))
sketch7.addConstraint(Sketcher.Constraint("Equal", 30, 31))
sketch7.addConstraint(Sketcher.Constraint("Equal", 28, 32))
sketch7.addConstraint(Sketcher.Constraint("Symmetric", 3, 3, 15, 3, -1, 1))
sketch7.addConstraint(Sketcher.Constraint("Symmetric", 5, 3, 17, 3, -1, 1))
sketch7.addConstraint(Sketcher.Constraint("Symmetric", 9, 3, 21, 3, -1, 1))
sketch7.addConstraint(Sketcher.Constraint("Symmetric", 11, 3, 23, 3, -1, 1))
sketch7.addConstraint(Sketcher.Constraint("Symmetric", 26, 3, 28, 3, -1, 1))
sketch7.addConstraint(Sketcher.Constraint("Symmetric", 24, 3, 32, 3, -1, 1))
sketch7.addConstraint(Sketcher.Constraint("Symmetric", 3, 3, 5, 3, -2))
sketch7.addConstraint(Sketcher.Constraint("Symmetric", 11, 3, 21, 3, -2))
sketch7.addConstraint(Sketcher.Constraint("Symmetric", 24, 3, 26, 3, -2))
sketch7.addConstraint(Sketcher.Constraint("Perpendicular", 1, 7))
sketch7.addConstraint(Sketcher.Constraint("Perpendicular", 7, 13))
sketch7.addConstraint(Sketcher.Constraint("Perpendicular", 13, 19))
sketch7.addConstraint(Sketcher.Constraint("Horizontal", 0, 2, 7, 2))
sketch7.addConstraint(Sketcher.Constraint("Horizontal", 12, 2, 19, 2))
sketch7.addConstraint(Sketcher.Constraint("Vertical", 6, 2, 13, 2))
sketch7.addConstraint(Sketcher.Constraint("Vertical", 1, 2, 18, 2))
sketch7.addConstraint(Sketcher.Constraint("Equal", 18, 0))
sketch7.addConstraint(Sketcher.Constraint("Diameter", 25, Q("4 mm")))
sketch7.addConstraint(Sketcher.Constraint("Diameter", 29, Q("23 mm")))
sketch7.addConstraint(Sketcher.Constraint("Radius", 3, Q("10 mm")))
sketch7.addConstraint(Sketcher.Constraint("Diameter", 24, Q("7.2 mm")))
sketch7.addConstraint(Sketcher.Constraint("Radius", 4, Q("3.5 mm")))
sketch7.addConstraint(Sketcher.Constraint("DistanceY", -1, 1, 3, 3, Q("31 mm")))
sketch7.addConstraint(Sketcher.Constraint("DistanceX", -1, 1, 9, 3, Q("31 mm")))
sketch7.addConstraint(Sketcher.Constraint("DistanceY", -1, 1, 0, 2, Q("16 mm")))
sketch7.addConstraint(Sketcher.Constraint("DistanceY", 16, 3, 4, 3, Q("53 mm")))
sketch7.addConstraint(Sketcher.Constraint("DistanceY", 24, 3, 4, 3, Q("11 mm")))
sketch7.addConstraint(Sketcher.Constraint("DistanceX", 22, 3, 24, 3, Q("11 mm")))
pad2 = doc.addObject("PartDesign::Pad", "Pad001")
body.addObject(pad2)
pad2.Profile = sketch7
pad2.Length = 4
pad2.Reversed = True

# Sketch on XZ plane
sketch8 = doc.addObject("Sketcher::SketchObject", "Sketch007")
body.addObject(sketch8)
sketch8.AttachmentSupport = (doc.XZ_Plane, [""])
sketch8.MapMode = "FlatFace"
sketch8.AttachmentOffset = App.Placement(App.Vector(0, 0, -9), App.Rotation())
sketch8.addGeometry(Part.Circle(App.Vector(0, 0, 0), App.Vector(0, 0, 1), 15), False)
sketch8.addConstraint(Sketcher.Constraint("Coincident", 0, 3, -1, 1))
sketch8.addConstraint(Sketcher.Constraint("Diameter", 0, Q("30 mm")))
pocket6 = doc.addObject("PartDesign::Pocket", "Pocket005")
body.addObject(pocket6)
pocket6.Profile = sketch8
pocket6.Length = 4
pocket6.Reversed = True

# Sketch on an angled plane
sketch9 = doc.addObject("Sketcher::SketchObject", "Sketch008")
body.addObject(sketch9)
sketch9.Placement = App.Placement(App.Vector(6.806657, 0, -22.349851), App.Rotation(App.Vector(-0.956619879, 0, -0.291338991), App.Vector(0, 1.000000001, 0), App.Vector(0.291338991, 0, -0.956619879), "ZXY"))
sketch9.addGeometry(Part.Circle(App.Vector(0, 5.2, 0), App.Vector(0, 0, 1), 3), False)
sketch9.addConstraint(Sketcher.Constraint("PointOnObject", 0, 3, -2))
sketch9.addConstraint(Sketcher.Constraint("Diameter", 0, Q("6 mm")))
sketch9.addConstraint(Sketcher.Constraint("DistanceY", -1, 1, 0, 3, Q("5.235319 mm")))
pocket7 = doc.addObject("PartDesign::Pocket", "Pocket006")
body.addObject(pocket7)
pocket7.Profile = sketch9
pocket7.Type = "TwoLengths"
pocket7.Length = 10
pocket7.Length2 = 16
pocket7.Reversed = True
doc.recompute()

chamfer2 = doc.addObject("PartDesign::Chamfer", "Chamfer001")
body.addObject(chamfer2)
chamfer2.Base = (pocket7, edges_at(pocket7, [
    (-28.5, 9, 0),
    (-2, 9, -26.5),
    (24.5, 9, 0),
    (-2, 9, 26.5),
]))
chamfer2.Size = 0.5

doc.recompute()
